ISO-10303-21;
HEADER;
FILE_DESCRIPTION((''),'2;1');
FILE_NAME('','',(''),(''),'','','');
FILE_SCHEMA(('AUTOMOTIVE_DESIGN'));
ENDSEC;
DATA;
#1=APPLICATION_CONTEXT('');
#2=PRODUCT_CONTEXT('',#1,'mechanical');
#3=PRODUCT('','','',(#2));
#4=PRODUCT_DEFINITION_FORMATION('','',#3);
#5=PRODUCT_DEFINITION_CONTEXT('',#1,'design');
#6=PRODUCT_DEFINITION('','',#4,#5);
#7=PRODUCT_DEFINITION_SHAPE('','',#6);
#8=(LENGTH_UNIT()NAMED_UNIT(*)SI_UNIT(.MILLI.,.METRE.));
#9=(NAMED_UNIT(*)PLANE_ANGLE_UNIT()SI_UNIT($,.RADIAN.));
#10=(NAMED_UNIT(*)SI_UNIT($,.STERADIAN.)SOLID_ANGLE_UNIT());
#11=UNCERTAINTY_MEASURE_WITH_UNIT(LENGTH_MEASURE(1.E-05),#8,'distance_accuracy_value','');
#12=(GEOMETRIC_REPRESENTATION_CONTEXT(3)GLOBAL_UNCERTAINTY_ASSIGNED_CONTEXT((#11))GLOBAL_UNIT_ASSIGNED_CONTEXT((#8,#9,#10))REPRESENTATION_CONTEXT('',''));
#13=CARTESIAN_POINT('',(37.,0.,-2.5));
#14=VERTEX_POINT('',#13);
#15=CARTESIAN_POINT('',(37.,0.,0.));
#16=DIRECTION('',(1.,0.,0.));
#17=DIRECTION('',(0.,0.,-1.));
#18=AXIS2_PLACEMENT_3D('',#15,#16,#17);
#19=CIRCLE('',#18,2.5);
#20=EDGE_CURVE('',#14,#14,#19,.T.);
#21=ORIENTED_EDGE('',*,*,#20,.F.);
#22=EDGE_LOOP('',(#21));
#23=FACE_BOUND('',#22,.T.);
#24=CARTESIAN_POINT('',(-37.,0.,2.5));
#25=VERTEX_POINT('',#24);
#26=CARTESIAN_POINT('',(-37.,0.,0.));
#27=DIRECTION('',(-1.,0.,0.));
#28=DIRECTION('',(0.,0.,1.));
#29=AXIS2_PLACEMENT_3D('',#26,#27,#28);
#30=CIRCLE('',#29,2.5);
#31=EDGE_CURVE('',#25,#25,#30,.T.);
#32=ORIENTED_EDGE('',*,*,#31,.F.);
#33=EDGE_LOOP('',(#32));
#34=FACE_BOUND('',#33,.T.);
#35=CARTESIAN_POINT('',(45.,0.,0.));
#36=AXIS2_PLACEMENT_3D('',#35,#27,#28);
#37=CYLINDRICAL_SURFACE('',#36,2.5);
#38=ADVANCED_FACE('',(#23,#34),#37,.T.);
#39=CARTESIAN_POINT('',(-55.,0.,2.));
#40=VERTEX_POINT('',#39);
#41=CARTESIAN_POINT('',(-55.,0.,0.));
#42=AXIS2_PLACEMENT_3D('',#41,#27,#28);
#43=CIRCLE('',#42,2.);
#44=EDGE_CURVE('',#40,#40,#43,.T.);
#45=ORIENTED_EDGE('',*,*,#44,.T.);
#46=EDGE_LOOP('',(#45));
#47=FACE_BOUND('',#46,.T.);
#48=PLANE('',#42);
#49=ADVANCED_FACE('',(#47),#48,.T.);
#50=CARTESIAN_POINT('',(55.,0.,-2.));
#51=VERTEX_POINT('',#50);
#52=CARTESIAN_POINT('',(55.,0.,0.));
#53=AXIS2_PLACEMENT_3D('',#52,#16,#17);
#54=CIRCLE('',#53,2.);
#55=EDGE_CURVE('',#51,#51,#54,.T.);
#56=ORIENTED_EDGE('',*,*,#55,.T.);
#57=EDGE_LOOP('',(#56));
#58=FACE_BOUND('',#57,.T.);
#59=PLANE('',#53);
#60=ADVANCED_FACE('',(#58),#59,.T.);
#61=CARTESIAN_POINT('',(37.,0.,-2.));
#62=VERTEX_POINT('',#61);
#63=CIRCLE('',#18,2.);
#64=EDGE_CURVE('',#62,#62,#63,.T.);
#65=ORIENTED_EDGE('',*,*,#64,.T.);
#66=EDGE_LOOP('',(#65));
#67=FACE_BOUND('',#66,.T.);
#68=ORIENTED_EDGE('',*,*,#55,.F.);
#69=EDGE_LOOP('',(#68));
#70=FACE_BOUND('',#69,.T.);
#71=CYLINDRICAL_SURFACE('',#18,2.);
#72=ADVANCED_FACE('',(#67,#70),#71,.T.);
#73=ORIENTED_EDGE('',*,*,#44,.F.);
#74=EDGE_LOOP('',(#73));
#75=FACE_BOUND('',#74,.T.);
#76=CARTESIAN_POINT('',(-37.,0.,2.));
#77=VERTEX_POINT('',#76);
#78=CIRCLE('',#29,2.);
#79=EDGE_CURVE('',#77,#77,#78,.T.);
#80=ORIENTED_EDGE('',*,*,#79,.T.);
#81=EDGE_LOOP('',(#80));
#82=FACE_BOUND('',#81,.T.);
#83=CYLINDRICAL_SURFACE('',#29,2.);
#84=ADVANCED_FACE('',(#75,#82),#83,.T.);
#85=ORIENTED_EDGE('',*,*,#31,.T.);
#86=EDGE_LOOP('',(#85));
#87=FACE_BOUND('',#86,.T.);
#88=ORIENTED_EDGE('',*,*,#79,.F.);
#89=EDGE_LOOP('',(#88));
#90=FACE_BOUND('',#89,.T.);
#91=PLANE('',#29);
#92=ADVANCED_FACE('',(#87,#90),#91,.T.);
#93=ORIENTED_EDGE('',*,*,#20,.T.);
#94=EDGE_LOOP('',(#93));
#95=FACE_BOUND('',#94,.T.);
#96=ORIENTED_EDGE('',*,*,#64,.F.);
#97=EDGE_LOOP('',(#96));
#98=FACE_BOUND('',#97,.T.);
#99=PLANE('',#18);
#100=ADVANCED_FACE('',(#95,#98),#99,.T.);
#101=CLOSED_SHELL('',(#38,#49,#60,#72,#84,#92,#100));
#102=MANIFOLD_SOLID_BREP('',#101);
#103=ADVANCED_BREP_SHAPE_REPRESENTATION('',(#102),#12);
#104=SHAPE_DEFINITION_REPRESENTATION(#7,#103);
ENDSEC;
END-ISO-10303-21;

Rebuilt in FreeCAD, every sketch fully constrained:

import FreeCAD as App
import Part
import Sketcher
Q = App.Units.Quantity

doc = App.newDocument("Part")
params = doc.addObject("Spreadsheet::Sheet", "Params")
for row, (alias, value) in enumerate([
    ("sketch1_diameter", "5 mm"),
    ("pad1_length", "90 mm"),
    ("sketch2_diameter", "5 mm"),
    ("sketch2_diameter2", "4 mm"),
    ("pocket1_length", "8 mm"),
    ("sketch3_diameter", "5 mm"),
    ("sketch3_diameter2", "4 mm"),
    ("pocket2_length", "8 mm"),
    ("sketch4_diameter", "4 mm"),
    ("pad2_length", "10 mm"),
    ("sketch5_diameter", "4 mm"),
    ("pad3_length", "10 mm"),
], start=1):
    params.set(f"A{row}", alias)
    params.set(f"B{row}", "=" + value)
    params.setAlias(f"B{row}", alias)

body = doc.addObject("PartDesign::Body", "Body")

# Sketch on YZ plane
sketch1 = doc.addObject("Sketcher::SketchObject", "Sketch")
body.addObject(sketch1)
sketch1.AttachmentSupport = (doc.YZ_Plane, [""])
sketch1.MapMode = "FlatFace"
sketch1.addGeometry(Part.Circle(App.Vector(0, 0, 0), App.Vector(0, 0, 1), 2.5), False)
sketch1.addConstraint([
    Sketcher.Constraint("Coincident", 0, 3, -1, 1),
    Sketcher.Constraint("Diameter", 0, Q("5 mm")),
])
sketch1.setExpression("Constraints[1]", "Params.sketch1_diameter")
pad1 = doc.addObject("PartDesign::Pad", "Pad")
body.addObject(pad1)
pad1.Profile = sketch1
pad1.setExpression("Length", "Params.pad1_length")
pad1.Midplane = True

# Sketch on YZ plane
sketch2 = doc.addObject("Sketcher::SketchObject", "Sketch001")
body.addObject(sketch2)
sketch2.AttachmentSupport = (doc.YZ_Plane, [""])
sketch2.MapMode = "FlatFace"
sketch2.AttachmentOffset = App.Placement(App.Vector(0, 0, 45), App.Rotation())
sketch2.addGeometry([
    Part.Circle(App.Vector(0, 0, 0), App.Vector(0, 0, 1), 2.5),
    Part.Circle(App.Vector(0, 0, 0), App.Vector(0, 0, 1), 2),
], False)
sketch2.addConstraint([
    Sketcher.Constraint("Coincident", 0, 3, -1, 1),
    Sketcher.Constraint("Coincident", 1, 3, -1, 1),
    Sketcher.Constraint("Diameter", 0, Q("5 mm")),
    Sketcher.Constraint("Diameter", 1, Q("4 mm")),
])
sketch2.setExpression("Constraints[2]", "Params.sketch2_diameter")
sketch2.setExpression("Constraints[3]", "Params.sketch2_diameter2")
pocket1 = doc.addObject("PartDesign::Pocket", "Pocket")
body.addObject(pocket1)
pocket1.Profile = sketch2
pocket1.setExpression("Length", "Params.pocket1_length")

# Sketch on YZ plane
sketch3 = doc.addObject("Sketcher::SketchObject", "Sketch002")
body.addObject(sketch3)
sketch3.AttachmentSupport = (doc.YZ_Plane, [""])
sketch3.MapMode = "FlatFace"
sketch3.AttachmentOffset = App.Placement(App.Vector(0, 0, -45), App.Rotation())
sketch3.addGeometry([
    Part.Circle(App.Vector(0, 0, 0), App.Vector(0, 0, 1), 2.5),
    Part.Circle(App.Vector(0, 0, 0), App.Vector(0, 0, 1), 2),
], False)
sketch3.addConstraint([
    Sketcher.Constraint("Coincident", 0, 3, -1, 1),
    Sketcher.Constraint("Coincident", 1, 3, -1, 1),
    Sketcher.Constraint("Diameter", 0, Q("5 mm")),
    Sketcher.Constraint("Diameter", 1, Q("4 mm")),
])
sketch3.setExpression("Constraints[2]", "Params.sketch3_diameter")
sketch3.setExpression("Constraints[3]", "Params.sketch3_diameter2")
pocket2 = doc.addObject("PartDesign::Pocket", "Pocket001")
body.addObject(pocket2)
pocket2.Profile = sketch3
pocket2.setExpression("Length", "Params.pocket2_length")
pocket2.Reversed = True

# Sketch on YZ plane
sketch4 = doc.addObject("Sketcher::SketchObject", "Sketch003")
body.addObject(sketch4)
sketch4.AttachmentSupport = (doc.YZ_Plane, [""])
sketch4.MapMode = "FlatFace"
sketch4.AttachmentOffset = App.Placement(App.Vector(0, 0, 45), App.Rotation())
sketch4.addGeometry(Part.Circle(App.Vector(0, 0, 0), App.Vector(0, 0, 1), 2), False)
sketch4.addConstraint([
    Sketcher.Constraint("Coincident", 0, 3, -1, 1),
    Sketcher.Constraint("Diameter", 0, Q("4 mm")),
])
sketch4.setExpression("Constraints[1]", "Params.sketch4_diameter")
pad2 = doc.addObject("PartDesign::Pad", "Pad001")
body.addObject(pad2)
pad2.Profile = sketch4
pad2.setExpression("Length", "Params.pad2_length")

# Sketch on YZ plane
sketch5 = doc.addObject("Sketcher::SketchObject", "Sketch004")
body.addObject(sketch5)
sketch5.AttachmentSupport = (doc.YZ_Plane, [""])
sketch5.MapMode = "FlatFace"
sketch5.AttachmentOffset = App.Placement(App.Vector(0, 0, -45), App.Rotation())
sketch5.addGeometry(Part.Circle(App.Vector(0, 0, 0), App.Vector(0, 0, 1), 2), False)
sketch5.addConstraint([
    Sketcher.Constraint("Coincident", 0, 3, -1, 1),
    Sketcher.Constraint("Diameter", 0, Q("4 mm")),
])
sketch5.setExpression("Constraints[1]", "Params.sketch5_diameter")
pad3 = doc.addObject("PartDesign::Pad", "Pad002")
body.addObject(pad3)
pad3.Profile = sketch5
pad3.setExpression("Length", "Params.pad3_length")
pad3.Reversed = True

doc.recompute()
